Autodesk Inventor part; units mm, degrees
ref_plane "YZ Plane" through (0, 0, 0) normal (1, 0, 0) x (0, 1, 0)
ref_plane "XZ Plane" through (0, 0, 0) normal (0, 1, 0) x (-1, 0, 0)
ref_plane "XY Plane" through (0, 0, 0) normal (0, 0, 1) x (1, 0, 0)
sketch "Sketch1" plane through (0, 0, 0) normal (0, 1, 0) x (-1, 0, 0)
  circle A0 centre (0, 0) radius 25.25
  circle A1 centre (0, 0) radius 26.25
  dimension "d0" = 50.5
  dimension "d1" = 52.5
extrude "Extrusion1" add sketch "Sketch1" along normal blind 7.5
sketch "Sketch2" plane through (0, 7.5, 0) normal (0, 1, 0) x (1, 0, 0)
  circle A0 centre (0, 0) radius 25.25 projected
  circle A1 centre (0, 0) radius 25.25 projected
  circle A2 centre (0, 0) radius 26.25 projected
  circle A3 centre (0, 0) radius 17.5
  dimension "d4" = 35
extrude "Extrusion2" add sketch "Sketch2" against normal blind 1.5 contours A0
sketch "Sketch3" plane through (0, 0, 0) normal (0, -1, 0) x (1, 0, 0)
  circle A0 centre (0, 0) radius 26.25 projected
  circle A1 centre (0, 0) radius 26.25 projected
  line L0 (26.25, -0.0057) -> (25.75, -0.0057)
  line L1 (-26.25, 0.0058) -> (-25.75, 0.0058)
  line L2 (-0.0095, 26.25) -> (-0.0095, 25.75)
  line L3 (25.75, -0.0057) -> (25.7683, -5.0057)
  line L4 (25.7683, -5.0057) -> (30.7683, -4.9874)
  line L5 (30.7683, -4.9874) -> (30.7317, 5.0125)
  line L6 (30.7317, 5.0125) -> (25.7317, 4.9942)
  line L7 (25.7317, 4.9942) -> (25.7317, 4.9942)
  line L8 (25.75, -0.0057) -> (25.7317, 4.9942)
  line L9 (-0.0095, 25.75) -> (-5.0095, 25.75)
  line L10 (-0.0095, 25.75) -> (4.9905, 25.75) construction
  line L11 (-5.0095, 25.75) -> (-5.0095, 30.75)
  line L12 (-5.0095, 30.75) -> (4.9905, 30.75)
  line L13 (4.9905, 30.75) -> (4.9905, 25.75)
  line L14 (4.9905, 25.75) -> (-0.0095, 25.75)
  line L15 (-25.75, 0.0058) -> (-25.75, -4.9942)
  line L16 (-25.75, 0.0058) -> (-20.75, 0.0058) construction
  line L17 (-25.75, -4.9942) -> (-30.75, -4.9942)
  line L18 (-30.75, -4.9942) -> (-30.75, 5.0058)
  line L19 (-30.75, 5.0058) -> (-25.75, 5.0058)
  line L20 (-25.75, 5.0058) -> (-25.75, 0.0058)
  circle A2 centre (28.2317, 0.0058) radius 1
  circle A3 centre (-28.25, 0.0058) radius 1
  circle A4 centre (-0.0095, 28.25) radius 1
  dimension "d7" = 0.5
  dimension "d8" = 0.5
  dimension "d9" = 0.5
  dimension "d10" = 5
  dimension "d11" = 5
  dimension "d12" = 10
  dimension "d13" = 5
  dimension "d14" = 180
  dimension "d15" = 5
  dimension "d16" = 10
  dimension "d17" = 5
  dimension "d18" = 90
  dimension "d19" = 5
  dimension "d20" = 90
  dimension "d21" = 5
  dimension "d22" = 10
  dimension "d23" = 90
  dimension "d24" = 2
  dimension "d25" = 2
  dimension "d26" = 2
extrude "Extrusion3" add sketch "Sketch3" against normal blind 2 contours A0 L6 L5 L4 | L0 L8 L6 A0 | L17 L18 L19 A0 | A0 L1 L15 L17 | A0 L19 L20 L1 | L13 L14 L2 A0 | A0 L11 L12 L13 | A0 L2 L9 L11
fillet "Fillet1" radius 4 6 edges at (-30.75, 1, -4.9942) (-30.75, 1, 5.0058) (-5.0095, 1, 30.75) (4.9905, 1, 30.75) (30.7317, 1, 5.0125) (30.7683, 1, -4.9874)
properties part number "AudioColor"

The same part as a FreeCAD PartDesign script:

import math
import FreeCAD as App
import Part
import Sketcher
from FreeCAD import Vector
Q = App.Units.Quantity


def edges_at(feature, points):
    """Names of the edges that pass closest to the given points."""
    edges = feature.Shape.Edges
    near = lambda p: min(range(len(edges)), key=lambda i: edges[i].distToShape(Part.Vertex(*p))[0])
    return sorted({f"Edge{near(p) + 1}" for p in points})

doc = App.newDocument("Part")
body = doc.addObject("PartDesign::Body", "Body")

# Sketch on XZ plane
sketch1 = doc.addObject("Sketcher::SketchObject", "Sketch")
body.addObject(sketch1)
sketch1.AttachmentSupport = (doc.XZ_Plane, [""])
sketch1.MapMode = "FlatFace"
sketch1.addGeometry(Part.Circle(Vector(0, 0, 0), Vector(0, 0, 1), 26), False)
sketch1.addGeometry(Part.Circle(Vector(0, 0, 0), Vector(0, 0, 1), 25), False)
sketch1.addConstraint(Sketcher.Constraint("Coincident", 0, 3, -1, 1))
sketch1.addConstraint(Sketcher.Constraint("Coincident", 1, 3, -1, 1))
sketch1.addConstraint(Sketcher.Constraint("Diameter", 0, 52.5))
sketch1.addConstraint(Sketcher.Constraint("Diameter", 1, 50.5))
pad1 = doc.addObject("PartDesign::Pad", "Pad")
body.addObject(pad1)
pad1.Profile = sketch1
pad1.Length = 7.5
pad1.Reversed = True

# Sketch on XZ plane
sketch2 = doc.addObject("Sketcher::SketchObject", "Sketch001")
body.addObject(sketch2)
sketch2.AttachmentSupport = (doc.XZ_Plane, [""])
sketch2.MapMode = "FlatFace"
sketch2.AttachmentOffset = App.Placement(Vector(0, 0, -7.5), App.Rotation())
sketch2.addGeometry(Part.Circle(Vector(0, 0, 0), Vector(0, 0, 1), 25), False)
sketch2.addGeometry(Part.Circle(Vector(0, 0, 0), Vector(0, 0, 1), 18), False)
sketch2.addConstraint(Sketcher.Constraint("Coincident", 0, 3, -1, 1))
sketch2.addConstraint(Sketcher.Constraint("Coincident", 1, 3, -1, 1))
sketch2.addConstraint(Sketcher.Constraint("Diameter", 1, 35.0))
sketch2.addConstraint(Sketcher.Constraint("Diameter", 0, 50.5))
pad2 = doc.addObject("PartDesign::Pad", "Pad001")
body.addObject(pad2)
pad2.Profile = sketch2
pad2.Length = 1.5

# Sketch on XZ plane
sketch3 = doc.addObject("Sketcher::SketchObject", "Sketch002")
body.addObject(sketch3)
sketch3.AttachmentSupport = (doc.XZ_Plane, [""])
sketch3.MapMode = "FlatFace"
sketch3.addGeometry(Part.ArcOfCircle(Part.Circle(Vector(0, 0, 0), Vector(0, 0, 1), 26.2), math.radians(-10.99), math.radians(-0.01)), False)
sketch3.addGeometry(Part.LineSegment(Vector(25.8, -5, 0), Vector(30.8, -5, 0)), False)
sketch3.addGeometry(Part.LineSegment(Vector(30.8, -5, 0), Vector(30.7, 5, 0)), False)
sketch3.addGeometry(Part.LineSegment(Vector(30.7, 5, 0), Vector(25.7, 5, 0)), False)
sketch3.addGeometry(Part.LineSegment(Vector(25.7, 5, 0), Vector(25.8, 0, 0)), False)
sketch3.addGeometry(Part.LineSegment(Vector(25.8, 0, 0), Vector(26.2, 0, 0)), False)
sketch3.addGeometry(Part.Circle(Vector(28.2, 0, 0), Vector(0, 0, 1), 1), False)
sketch3.addGeometry(Part.LineSegment(Vector(-30.8, -5, 0), Vector(-25.8, -5, 0)), False)
sketch3.addGeometry(Part.LineSegment(Vector(-25.8, -5, 0), Vector(-25.8, 5, 0)), False)
sketch3.addGeometry(Part.LineSegment(Vector(-25.8, 5, 0), Vector(-30.8, 5, 0)), False)
sketch3.addGeometry(Part.LineSegment(Vector(-30.8, 5, 0), Vector(-30.8, -5, 0)), False)
sketch3.addGeometry(Part.Circle(Vector(-28.2, 0, 0), Vector(0, 0, 1), 1), False)
sketch3.addGeometry(Part.LineSegment(Vector(5, 25.8, 0), Vector(5, 30.8, 0)), False)
sketch3.addGeometry(Part.LineSegment(Vector(5, 30.8, 0), Vector(-5, 30.8, 0)), False)
sketch3.addGeometry(Part.LineSegment(Vector(-5, 30.8, 0), Vector(-5, 25.8, 0)), False)
sketch3.addGeometry(Part.LineSegment(Vector(-5, 25.8, 0), Vector(5, 25.8, 0)), False)
sketch3.addGeometry(Part.Circle(Vector(0, 28.2, 0), Vector(0, 0, 1), 1), False)
sketch3.addConstraint(Sketcher.Constraint("Coincident", 0, 1, 1, 1))
sketch3.addConstraint(Sketcher.Constraint("Coincident", 1, 2, 2, 1))
sketch3.addConstraint(Sketcher.Constraint("Coincident", 2, 2, 3, 1))
sketch3.addConstraint(Sketcher.Constraint("Coincident", 3, 2, 4, 1))
sketch3.addConstraint(Sketcher.Constraint("Coincident", 4, 2, 5, 1))
sketch3.addConstraint(Sketcher.Constraint("Coincident", 5, 2, 0, 2))
sketch3.addConstraint(Sketcher.Constraint("Coincident", 7, 2, 8, 1))
sketch3.addConstraint(Sketcher.Constraint("Coincident", 8, 2, 9, 1))
sketch3.addConstraint(Sketcher.Constraint("Coincident", 9, 2, 10, 1))
sketch3.addConstraint(Sketcher.Constraint("Coincident", 10, 2, 7, 1))
sketch3.addConstraint(Sketcher.Constraint("Coincident", 12, 2, 13, 1))
sketch3.addConstraint(Sketcher.Constraint("Coincident", 13, 2, 14, 1))
sketch3.addConstraint(Sketcher.Constraint("Coincident", 14, 2, 15, 1))
sketch3.addConstraint(Sketcher.Constraint("Coincident", 15, 2, 12, 1))
sketch3.addConstraint(Sketcher.Constraint("Horizontal", 5))
sketch3.addConstraint(Sketcher.Constraint("Horizontal", 7))
sketch3.addConstraint(Sketcher.Constraint("Vertical", 8))
sketch3.addConstraint(Sketcher.Constraint("Horizontal", 9))
sketch3.addConstraint(Sketcher.Constraint("Vertical", 10))
sketch3.addConstraint(Sketcher.Constraint("Vertical", 12))
sketch3.addConstraint(Sketcher.Constraint("Horizontal", 13))
sketch3.addConstraint(Sketcher.Constraint("Vertical", 14))
sketch3.addConstraint(Sketcher.Constraint("Horizontal", 15))
sketch3.addConstraint(Sketcher.Constraint("Coincident", 0, 3, -1, 1))
sketch3.addConstraint(Sketcher.Constraint("Equal", 6, 11))
sketch3.addConstraint(Sketcher.Constraint("Equal", 11, 16))
sketch3.addConstraint(Sketcher.Constraint("Perpendicular", 1, 2))
sketch3.addConstraint(Sketcher.Constraint("Perpendicular", 2, 3))
sketch3.addConstraint(Sketcher.Constraint("Perpendicular", 3, 4))
sketch3.addConstraint(Sketcher.Constraint("Horizontal", 6, 3, 11, 3))
sketch3.addConstraint(Sketcher.Constraint("Equal", 15, 8))
sketch3.addConstraint(Sketcher.Constraint("Equal", 9, 12))
sketch3.addConstraint(Sketcher.Constraint("Equal", 1, 3))
sketch3.addConstraint(Sketcher.Constraint("Equal", 3, 4))
sketch3.addConstraint(Sketcher.Constraint("Diameter", 6, 2.0))
sketch3.addConstraint(Sketcher.Constraint("DistanceX", 7, 1, 7, 2, 5.0))
sketch3.addConstraint(Sketcher.Constraint("DistanceX", 13, 2, 13, 1, 10.0))
sketch3.addConstraint(Sketcher.Constraint("Distance", 1, 5.0))
sketch3.addConstraint(Sketcher.Constraint("Distance", 2, 10.0))
sketch3.addConstraint(Sketcher.Constraint("DistanceX", 5, 1, 5, 2, 0.5))
sketch3.addConstraint(Sketcher.Constraint("DistanceY", 7, 2, 11, 3, 5.0))
sketch3.addConstraint(Sketcher.Constraint("DistanceX", 16, 3, 12, 2, 5.0))
sketch3.addConstraint(Sketcher.Constraint("Radius", 0, 26.25))
sketch3.addConstraint(Sketcher.Constraint("Angle", 1, Q("0.2097 deg")))
sketch3.addConstraint(Sketcher.Constraint("DistanceX", 6, 3, 2, 2, 2.5))
sketch3.addConstraint(Sketcher.Constraint("DistanceX", 11, 3, 7, 2, 2.5))
sketch3.addConstraint(Sketcher.Constraint("DistanceX", 7, 2, 4, 2, 51.5))
sketch3.addConstraint(Sketcher.Constraint("DistanceY", 16, 3, 12, 2, 2.5))
sketch3.addConstraint(Sketcher.Constraint("DistanceY", -1, 1, 16, 3, 28.25))
sketch3.addConstraint(Sketcher.Constraint("DistanceY", -1, 1, 6, 3, 0.0058))
sketch3.addConstraint(Sketcher.Constraint("DistanceX", 16, 3, -1, 1, 0.0095))
pad3 = doc.addObject("PartDesign::Pad", "Pad002")
body.addObject(pad3)
pad3.Profile = sketch3
pad3.Length = 2
pad3.Reversed = True
doc.recompute()

fillet = doc.addObject("PartDesign::Fillet", "Fillet")
body.addObject(fillet)
fillet.Base = (pad3, edges_at(pad3, [
    (-30.75, 1, -4.994),
    (-30.75, 1, 5.006),
    (-5.01, 1, 30.75),
    (4.99, 1, 30.75),
    (30.732, 1, 5.013),
    (30.768, 1, -4.987),
]))
fillet.Radius = 4

doc.recompute()
